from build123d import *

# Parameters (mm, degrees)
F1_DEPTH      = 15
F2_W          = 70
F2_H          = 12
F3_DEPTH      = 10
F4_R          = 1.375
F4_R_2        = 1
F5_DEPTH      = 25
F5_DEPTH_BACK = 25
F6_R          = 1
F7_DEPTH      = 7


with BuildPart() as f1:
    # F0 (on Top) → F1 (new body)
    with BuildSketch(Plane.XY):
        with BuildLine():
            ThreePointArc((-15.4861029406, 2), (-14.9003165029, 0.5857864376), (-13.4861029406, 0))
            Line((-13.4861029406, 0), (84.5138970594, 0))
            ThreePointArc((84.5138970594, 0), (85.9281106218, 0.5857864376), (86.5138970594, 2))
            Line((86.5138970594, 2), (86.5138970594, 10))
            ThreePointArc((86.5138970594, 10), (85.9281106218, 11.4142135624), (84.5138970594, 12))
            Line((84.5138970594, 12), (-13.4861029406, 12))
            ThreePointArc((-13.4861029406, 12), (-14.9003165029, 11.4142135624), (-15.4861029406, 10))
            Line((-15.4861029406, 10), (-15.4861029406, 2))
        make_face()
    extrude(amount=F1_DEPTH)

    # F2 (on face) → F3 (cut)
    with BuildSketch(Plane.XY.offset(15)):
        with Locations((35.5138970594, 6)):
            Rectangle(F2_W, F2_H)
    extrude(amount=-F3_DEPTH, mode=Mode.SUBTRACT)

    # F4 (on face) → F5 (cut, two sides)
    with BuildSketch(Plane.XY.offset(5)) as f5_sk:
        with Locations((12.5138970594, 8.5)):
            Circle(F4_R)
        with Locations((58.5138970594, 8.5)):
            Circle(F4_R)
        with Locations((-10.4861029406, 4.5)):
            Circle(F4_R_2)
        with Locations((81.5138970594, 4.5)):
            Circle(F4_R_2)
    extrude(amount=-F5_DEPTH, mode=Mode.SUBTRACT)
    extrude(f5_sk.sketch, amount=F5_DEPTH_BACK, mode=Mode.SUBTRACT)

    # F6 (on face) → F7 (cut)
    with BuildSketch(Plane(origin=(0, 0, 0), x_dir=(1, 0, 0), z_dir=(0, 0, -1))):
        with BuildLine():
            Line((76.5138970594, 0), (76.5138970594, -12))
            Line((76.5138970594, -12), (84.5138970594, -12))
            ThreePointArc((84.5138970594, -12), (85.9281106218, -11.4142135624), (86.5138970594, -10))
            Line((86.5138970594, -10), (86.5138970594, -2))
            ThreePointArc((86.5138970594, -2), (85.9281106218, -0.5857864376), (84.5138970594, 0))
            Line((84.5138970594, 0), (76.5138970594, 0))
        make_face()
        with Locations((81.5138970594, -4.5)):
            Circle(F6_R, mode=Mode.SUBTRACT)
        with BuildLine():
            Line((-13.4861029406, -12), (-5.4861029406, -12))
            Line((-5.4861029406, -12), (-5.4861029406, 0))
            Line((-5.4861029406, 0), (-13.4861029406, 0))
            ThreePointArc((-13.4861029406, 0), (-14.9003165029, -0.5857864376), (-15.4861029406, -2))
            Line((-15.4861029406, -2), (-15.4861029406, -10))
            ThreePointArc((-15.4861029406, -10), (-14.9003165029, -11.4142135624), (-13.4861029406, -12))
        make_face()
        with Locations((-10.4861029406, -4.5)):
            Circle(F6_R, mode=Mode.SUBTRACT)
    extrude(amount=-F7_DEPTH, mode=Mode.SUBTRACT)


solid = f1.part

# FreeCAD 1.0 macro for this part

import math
import FreeCAD as App
import Part
import Sketcher
from FreeCAD import Vector
Q = App.Units.Quantity


def add_polygon(sketch, points):
    """Adds a closed chain of lines whose ends are joined by coincident constraints."""
    first, n = sketch.GeometryCount, len(points)
    for a, b in zip(points, points[1:] + points[:1]):
        sketch.addGeometry(Part.LineSegment(App.Vector(*a, 0), App.Vector(*b, 0)), False)
    for i in range(n):
        sketch.addConstraint(Sketcher.Constraint("Coincident", first + i, 2, first + (i + 1) % n, 1))

doc = App.newDocument("Part")
params = doc.addObject("Spreadsheet::Sheet", "Params")
for row, (alias, value) in enumerate([
    ("sketch1_radius", "2 mm"),
    ("sketch1_width", "98 mm"),
    ("sketch1_height", "8 mm"),
    ("pad1_length", "15 mm"),
    ("sketch2_width", "70 mm"),
    ("sketch2_height", "12 mm"),
    ("pocket1_length", "10 mm"),
    ("sketch3_diameter", "2 mm"),
    ("sketch3_diameter2", "2.75 mm"),
    ("sketch4_diameter", "2 mm"),
    ("sketch4_radius", "2 mm"),
    ("sketch4_width", "8 mm"),
    ("pocket3_length", "7 mm"),
], start=1):
    params.set(f"A{row}", alias)
    params.set(f"B{row}", "=" + value)
    params.setAlias(f"B{row}", alias)

body = doc.addObject("PartDesign::Body", "Body")

# Sketch on XY plane
sketch1 = body.newObject("Sketcher::SketchObject", "Sketch")
sketch1.AttachmentSupport = (doc.getObject("XY_Plane"), [""])
sketch1.MapMode = "FlatFace"
sketch1.addGeometry([
    Part.ArcOfCircle(Part.Circle(Vector(-13.5, 2, 0), Vector(0, 0, 1), 2), math.radians(180), math.radians(270)),  # 0
    Part.LineSegment(Vector(-13.5, 0, 0), Vector(84.5, 0, 0)),  # 1
    Part.ArcOfCircle(Part.Circle(Vector(84.5, 2, 0), Vector(0, 0, 1), 2), math.radians(-90), math.radians(0)),  # 2
    Part.LineSegment(Vector(86.5, 2, 0), Vector(86.5, 10, 0)),  # 3
    Part.ArcOfCircle(Part.Circle(Vector(84.5, 10, 0), Vector(0, 0, 1), 2), math.radians(0), math.radians(90)),  # 4
    Part.LineSegment(Vector(84.5, 12, 0), Vector(-13.5, 12, 0)),  # 5
    Part.ArcOfCircle(Part.Circle(Vector(-13.5, 10, 0), Vector(0, 0, 1), 2), math.radians(90), math.radians(180)),  # 6
    Part.LineSegment(Vector(-15.5, 10, 0), Vector(-15.5, 2, 0)),  # 7
], False)
sketch1.addConstraint([
    Sketcher.Constraint("Tangent", 0, 2, 1, 1),
    Sketcher.Constraint("Tangent", 1, 2, 2, 1),
    Sketcher.Constraint("Tangent", 2, 2, 3, 1),
    Sketcher.Constraint("Tangent", 3, 2, 4, 1),
    Sketcher.Constraint("Tangent", 4, 2, 5, 1),
    Sketcher.Constraint("Tangent", 5, 2, 6, 1),
    Sketcher.Constraint("Tangent", 6, 2, 7, 1),
    Sketcher.Constraint("Tangent", 7, 2, 0, 1),
    Sketcher.Constraint("Horizontal", 1),
    Sketcher.Constraint("Vertical", 3),
    Sketcher.Constraint("Horizontal", 5),
    Sketcher.Constraint("Vertical", 7),
    Sketcher.Constraint("Equal", 0, 2),
    Sketcher.Constraint("Equal", 2, 4),
    Sketcher.Constraint("Equal", 4, 6),
    Sketcher.Constraint("PointOnObject", 0, 2, -1),
    Sketcher.Constraint("Radius", 0, Q("2 mm")),
    Sketcher.Constraint("DistanceX", 1, 1, 1, 2, Q("98 mm")),
    Sketcher.Constraint("DistanceY", 3, 1, 3, 2, Q("8 mm")),
    Sketcher.Constraint("DistanceX", 0, 3, -1, 1, Q("13.486103 mm")),
])
sketch1.setExpression("Constraints[16]", "Params.sketch1_radius")
sketch1.setExpression("Constraints[17]", "Params.sketch1_width")
sketch1.setExpression("Constraints[18]", "Params.sketch1_height")
pad1 = body.newObject("PartDesign::Pad", "Pad")
pad1.Profile = sketch1
pad1.setExpression("Length", "Params.pad1_length")

# Sketch on XY plane
sketch2 = body.newObject("Sketcher::SketchObject", "Sketch001")
sketch2.AttachmentSupport = (doc.getObject("XY_Plane"), [""])
sketch2.MapMode = "FlatFace"
sketch2.AttachmentOffset = App.Placement(Vector(0, 0, 15), App.Rotation())
add_polygon(sketch2, [(1, 12), (1, 0), (71, 0), (71, 12)])  # lines 0-3
sketch2.addConstraint([
    Sketcher.Constraint("Vertical", 0),
    Sketcher.Constraint("Horizontal", 1),
    Sketcher.Constraint("Vertical", 2),
    Sketcher.Constraint("Horizontal", 3),
    Sketcher.Constraint("PointOnObject", 0, 2, -1),
    Sketcher.Constraint("DistanceX", 1, 1, 1, 2, Q("70 mm")),
    Sketcher.Constraint("DistanceY", 0, 2, 0, 1, Q("12 mm")),
    Sketcher.Constraint("DistanceX", -1, 1, 0, 2, Q("0.513897 mm")),
])
sketch2.setExpression("Constraints[9]", "Params.sketch2_width")
sketch2.setExpression("Constraints[10]", "Params.sketch2_height")
pocket1 = body.newObject("PartDesign::Pocket", "Pocket")
pocket1.Profile = sketch2
pocket1.setExpression("Length", "Params.pocket1_length")

# Sketch on XY plane
sketch3 = body.newObject("Sketcher::SketchObject", "Sketch002")
sketch3.AttachmentSupport = (doc.getObject("XY_Plane"), [""])
sketch3.MapMode = "FlatFace"
sketch3.AttachmentOffset = App.Placement(Vector(0, 0, 5), App.Rotation())
sketch3.addGeometry([
    Part.Circle(Vector(12.5, 8.5, 0), Vector(0, 0, 1), 1.4),
    Part.Circle(Vector(58.5, 8.5, 0), Vector(0, 0, 1), 1.4),
    Part.Circle(Vector(-10.5, 4.5, 0), Vector(0, 0, 1), 1),
    Part.Circle(Vector(81.5, 4.5, 0), Vector(0, 0, 1), 1),
], False)
sketch3.addConstraint([
    Sketcher.Constraint("Equal", 0, 1),
    Sketcher.Constraint("Equal", 2, 3),
    Sketcher.Constraint("Horizontal", 0, 3, 1, 3),
    Sketcher.Constraint("Horizontal", 2, 3, 3, 3),
    Sketcher.Constraint("Diameter", 2, Q("2 mm")),
    Sketcher.Constraint("Diameter", 0, Q("2.75 mm")),
    Sketcher.Constraint("DistanceX", 0, 3, 1, 3, Q("46 mm")),
    Sketcher.Constraint("DistanceX", 2, 3, 0, 3, Q("23 mm")),
    Sketcher.Constraint("DistanceY", 2, 3, 0, 3, Q("4 mm")),
    Sketcher.Constraint("DistanceX", 1, 3, 3, 3, Q("23 mm")),
    Sketcher.Constraint("DistanceY", -1, 1, 0, 3, Q("8.5 mm")),
    Sketcher.Constraint("DistanceX", -1, 1, 0, 3, Q("12.513897 mm")),
])
sketch3.setExpression("Constraints[4]", "Params.sketch3_diameter")
sketch3.setExpression("Constraints[5]", "Params.sketch3_diameter2")
pocket2 = body.newObject("PartDesign::Pocket", "Pocket001")
pocket2.Profile = sketch3
pocket2.Type = "ThroughAll"
pocket2.Midplane = True

# Sketch on XY plane
sketch4 = body.newObject("Sketcher::SketchObject", "Sketch003")
sketch4.AttachmentSupport = (doc.getObject("XY_Plane"), [""])
sketch4.MapMode = "FlatFace"
sketch4.addGeometry([
    Part.LineSegment(Vector(76.5, 0, 0), Vector(76.5, 12, 0)),  # 0
    Part.LineSegment(Vector(76.5, 12, 0), Vector(84.5, 12, 0)),  # 1
    Part.ArcOfCircle(Part.Circle(Vector(84.5, 10, 0), Vector(0, 0, 1), 2), math.radians(0), math.radians(90)),  # 2
    Part.LineSegment(Vector(86.5, 10, 0), Vector(86.5, 2, 0)),  # 3
    Part.ArcOfCircle(Part.Circle(Vector(84.5, 2, 0), Vector(0, 0, 1), 2), math.radians(-90), math.radians(0)),  # 4
    Part.LineSegment(Vector(84.5, 0, 0), Vector(76.5, 0, 0)),  # 5
    Part.Circle(Vector(81.5, 4.5, 0), Vector(0, 0, 1), 1),  # 6
    Part.LineSegment(Vector(-13.5, 12, 0), Vector(-5.5, 12, 0)),  # 7
    Part.LineSegment(Vector(-5.5, 12, 0), Vector(-5.5, 0, 0)),  # 8
    Part.LineSegment(Vector(-5.5, 0, 0), Vector(-13.5, 0, 0)),  # 9
    Part.ArcOfCircle(Part.Circle(Vector(-13.5, 2, 0), Vector(0, 0, 1), 2), math.radians(180), math.radians(270)),  # 10
    Part.LineSegment(Vector(-15.5, 2, 0), Vector(-15.5, 10, 0)),  # 11
    Part.ArcOfCircle(Part.Circle(Vector(-13.5, 10, 0), Vector(0, 0, 1), 2), math.radians(90), math.radians(180)),  # 12
    Part.Circle(Vector(-10.5, 4.5, 0), Vector(0, 0, 1), 1),  # 13
], False)
sketch4.addConstraint([
    Sketcher.Constraint("Coincident", 0, 2, 1, 1),
    Sketcher.Constraint("Tangent", 1, 2, 2, 2),
    Sketcher.Constraint("Tangent", 2, 1, 3, 1),
    Sketcher.Constraint("Tangent", 3, 2, 4, 2),
    Sketcher.Constraint("Tangent", 4, 1, 5, 1),
    Sketcher.Constraint("Coincident", 5, 2, 0, 1),
    Sketcher.Constraint("Coincident", 7, 2, 8, 1),
    Sketcher.Constraint("Coincident", 8, 2, 9, 1),
    Sketcher.Constraint("Tangent", 9, 2, 10, 2),
    Sketcher.Constraint("Tangent", 10, 1, 11, 1),
    Sketcher.Constraint("Tangent", 11, 2, 12, 2),
    Sketcher.Constraint("Tangent", 12, 1, 7, 1),
    Sketcher.Constraint("Vertical", 0),
    Sketcher.Constraint("Horizontal", 1),
    Sketcher.Constraint("Vertical", 3),
    Sketcher.Constraint("Horizontal", 5),
    Sketcher.Constraint("Horizontal", 7),
    Sketcher.Constraint("Vertical", 8),
    Sketcher.Constraint("Horizontal", 9),
    Sketcher.Constraint("Vertical", 11),
    Sketcher.Constraint("Equal", 2, 4),
    Sketcher.Constraint("Equal", 4, 10),
    Sketcher.Constraint("Equal", 10, 12),
    Sketcher.Constraint("Equal", 6, 13),
    Sketcher.Constraint("PointOnObject", 4, 1, -1),
    Sketcher.Constraint("PointOnObject", 8, 2, -1),
    Sketcher.Constraint("Horizontal", 2, 3, 12, 3),
    Sketcher.Constraint("Horizontal", 6, 3, 13, 3),
    Sketcher.Constraint("Equal", 5, 7),
    Sketcher.Constraint("Equal", 9, 3),
    Sketcher.Constraint("Diameter", 6, Q("2 mm")),
    Sketcher.Constraint("Radius", 2, Q("2 mm")),
    Sketcher.Constraint("DistanceX", 1, 1, 1, 2, Q("8 mm")),
    Sketcher.Constraint("DistanceX", 6, 3, 4, 3, Q("3 mm")),
    Sketcher.Constraint("DistanceX", 10, 3, 6, 3, Q("95 mm")),
    Sketcher.Constraint("DistanceX", 10, 3, 13, 3, Q("3 mm")),
    Sketcher.Constraint("DistanceY", -1, 1, 6, 3, Q("4.5 mm")),
    Sketcher.Constraint("DistanceX", -1, 1, 2, 3, Q("84.513897 mm")),
])
sketch4.setExpression("Constraints[30]", "Params.sketch4_diameter")
sketch4.setExpression("Constraints[31]", "Params.sketch4_radius")
sketch4.setExpression("Constraints[32]", "Params.sketch4_width")
pocket3 = body.newObject("PartDesign::Pocket", "Pocket002")
pocket3.Profile = sketch4
pocket3.setExpression("Length", "Params.pocket3_length")
pocket3.Reversed = True

doc.recompute()
